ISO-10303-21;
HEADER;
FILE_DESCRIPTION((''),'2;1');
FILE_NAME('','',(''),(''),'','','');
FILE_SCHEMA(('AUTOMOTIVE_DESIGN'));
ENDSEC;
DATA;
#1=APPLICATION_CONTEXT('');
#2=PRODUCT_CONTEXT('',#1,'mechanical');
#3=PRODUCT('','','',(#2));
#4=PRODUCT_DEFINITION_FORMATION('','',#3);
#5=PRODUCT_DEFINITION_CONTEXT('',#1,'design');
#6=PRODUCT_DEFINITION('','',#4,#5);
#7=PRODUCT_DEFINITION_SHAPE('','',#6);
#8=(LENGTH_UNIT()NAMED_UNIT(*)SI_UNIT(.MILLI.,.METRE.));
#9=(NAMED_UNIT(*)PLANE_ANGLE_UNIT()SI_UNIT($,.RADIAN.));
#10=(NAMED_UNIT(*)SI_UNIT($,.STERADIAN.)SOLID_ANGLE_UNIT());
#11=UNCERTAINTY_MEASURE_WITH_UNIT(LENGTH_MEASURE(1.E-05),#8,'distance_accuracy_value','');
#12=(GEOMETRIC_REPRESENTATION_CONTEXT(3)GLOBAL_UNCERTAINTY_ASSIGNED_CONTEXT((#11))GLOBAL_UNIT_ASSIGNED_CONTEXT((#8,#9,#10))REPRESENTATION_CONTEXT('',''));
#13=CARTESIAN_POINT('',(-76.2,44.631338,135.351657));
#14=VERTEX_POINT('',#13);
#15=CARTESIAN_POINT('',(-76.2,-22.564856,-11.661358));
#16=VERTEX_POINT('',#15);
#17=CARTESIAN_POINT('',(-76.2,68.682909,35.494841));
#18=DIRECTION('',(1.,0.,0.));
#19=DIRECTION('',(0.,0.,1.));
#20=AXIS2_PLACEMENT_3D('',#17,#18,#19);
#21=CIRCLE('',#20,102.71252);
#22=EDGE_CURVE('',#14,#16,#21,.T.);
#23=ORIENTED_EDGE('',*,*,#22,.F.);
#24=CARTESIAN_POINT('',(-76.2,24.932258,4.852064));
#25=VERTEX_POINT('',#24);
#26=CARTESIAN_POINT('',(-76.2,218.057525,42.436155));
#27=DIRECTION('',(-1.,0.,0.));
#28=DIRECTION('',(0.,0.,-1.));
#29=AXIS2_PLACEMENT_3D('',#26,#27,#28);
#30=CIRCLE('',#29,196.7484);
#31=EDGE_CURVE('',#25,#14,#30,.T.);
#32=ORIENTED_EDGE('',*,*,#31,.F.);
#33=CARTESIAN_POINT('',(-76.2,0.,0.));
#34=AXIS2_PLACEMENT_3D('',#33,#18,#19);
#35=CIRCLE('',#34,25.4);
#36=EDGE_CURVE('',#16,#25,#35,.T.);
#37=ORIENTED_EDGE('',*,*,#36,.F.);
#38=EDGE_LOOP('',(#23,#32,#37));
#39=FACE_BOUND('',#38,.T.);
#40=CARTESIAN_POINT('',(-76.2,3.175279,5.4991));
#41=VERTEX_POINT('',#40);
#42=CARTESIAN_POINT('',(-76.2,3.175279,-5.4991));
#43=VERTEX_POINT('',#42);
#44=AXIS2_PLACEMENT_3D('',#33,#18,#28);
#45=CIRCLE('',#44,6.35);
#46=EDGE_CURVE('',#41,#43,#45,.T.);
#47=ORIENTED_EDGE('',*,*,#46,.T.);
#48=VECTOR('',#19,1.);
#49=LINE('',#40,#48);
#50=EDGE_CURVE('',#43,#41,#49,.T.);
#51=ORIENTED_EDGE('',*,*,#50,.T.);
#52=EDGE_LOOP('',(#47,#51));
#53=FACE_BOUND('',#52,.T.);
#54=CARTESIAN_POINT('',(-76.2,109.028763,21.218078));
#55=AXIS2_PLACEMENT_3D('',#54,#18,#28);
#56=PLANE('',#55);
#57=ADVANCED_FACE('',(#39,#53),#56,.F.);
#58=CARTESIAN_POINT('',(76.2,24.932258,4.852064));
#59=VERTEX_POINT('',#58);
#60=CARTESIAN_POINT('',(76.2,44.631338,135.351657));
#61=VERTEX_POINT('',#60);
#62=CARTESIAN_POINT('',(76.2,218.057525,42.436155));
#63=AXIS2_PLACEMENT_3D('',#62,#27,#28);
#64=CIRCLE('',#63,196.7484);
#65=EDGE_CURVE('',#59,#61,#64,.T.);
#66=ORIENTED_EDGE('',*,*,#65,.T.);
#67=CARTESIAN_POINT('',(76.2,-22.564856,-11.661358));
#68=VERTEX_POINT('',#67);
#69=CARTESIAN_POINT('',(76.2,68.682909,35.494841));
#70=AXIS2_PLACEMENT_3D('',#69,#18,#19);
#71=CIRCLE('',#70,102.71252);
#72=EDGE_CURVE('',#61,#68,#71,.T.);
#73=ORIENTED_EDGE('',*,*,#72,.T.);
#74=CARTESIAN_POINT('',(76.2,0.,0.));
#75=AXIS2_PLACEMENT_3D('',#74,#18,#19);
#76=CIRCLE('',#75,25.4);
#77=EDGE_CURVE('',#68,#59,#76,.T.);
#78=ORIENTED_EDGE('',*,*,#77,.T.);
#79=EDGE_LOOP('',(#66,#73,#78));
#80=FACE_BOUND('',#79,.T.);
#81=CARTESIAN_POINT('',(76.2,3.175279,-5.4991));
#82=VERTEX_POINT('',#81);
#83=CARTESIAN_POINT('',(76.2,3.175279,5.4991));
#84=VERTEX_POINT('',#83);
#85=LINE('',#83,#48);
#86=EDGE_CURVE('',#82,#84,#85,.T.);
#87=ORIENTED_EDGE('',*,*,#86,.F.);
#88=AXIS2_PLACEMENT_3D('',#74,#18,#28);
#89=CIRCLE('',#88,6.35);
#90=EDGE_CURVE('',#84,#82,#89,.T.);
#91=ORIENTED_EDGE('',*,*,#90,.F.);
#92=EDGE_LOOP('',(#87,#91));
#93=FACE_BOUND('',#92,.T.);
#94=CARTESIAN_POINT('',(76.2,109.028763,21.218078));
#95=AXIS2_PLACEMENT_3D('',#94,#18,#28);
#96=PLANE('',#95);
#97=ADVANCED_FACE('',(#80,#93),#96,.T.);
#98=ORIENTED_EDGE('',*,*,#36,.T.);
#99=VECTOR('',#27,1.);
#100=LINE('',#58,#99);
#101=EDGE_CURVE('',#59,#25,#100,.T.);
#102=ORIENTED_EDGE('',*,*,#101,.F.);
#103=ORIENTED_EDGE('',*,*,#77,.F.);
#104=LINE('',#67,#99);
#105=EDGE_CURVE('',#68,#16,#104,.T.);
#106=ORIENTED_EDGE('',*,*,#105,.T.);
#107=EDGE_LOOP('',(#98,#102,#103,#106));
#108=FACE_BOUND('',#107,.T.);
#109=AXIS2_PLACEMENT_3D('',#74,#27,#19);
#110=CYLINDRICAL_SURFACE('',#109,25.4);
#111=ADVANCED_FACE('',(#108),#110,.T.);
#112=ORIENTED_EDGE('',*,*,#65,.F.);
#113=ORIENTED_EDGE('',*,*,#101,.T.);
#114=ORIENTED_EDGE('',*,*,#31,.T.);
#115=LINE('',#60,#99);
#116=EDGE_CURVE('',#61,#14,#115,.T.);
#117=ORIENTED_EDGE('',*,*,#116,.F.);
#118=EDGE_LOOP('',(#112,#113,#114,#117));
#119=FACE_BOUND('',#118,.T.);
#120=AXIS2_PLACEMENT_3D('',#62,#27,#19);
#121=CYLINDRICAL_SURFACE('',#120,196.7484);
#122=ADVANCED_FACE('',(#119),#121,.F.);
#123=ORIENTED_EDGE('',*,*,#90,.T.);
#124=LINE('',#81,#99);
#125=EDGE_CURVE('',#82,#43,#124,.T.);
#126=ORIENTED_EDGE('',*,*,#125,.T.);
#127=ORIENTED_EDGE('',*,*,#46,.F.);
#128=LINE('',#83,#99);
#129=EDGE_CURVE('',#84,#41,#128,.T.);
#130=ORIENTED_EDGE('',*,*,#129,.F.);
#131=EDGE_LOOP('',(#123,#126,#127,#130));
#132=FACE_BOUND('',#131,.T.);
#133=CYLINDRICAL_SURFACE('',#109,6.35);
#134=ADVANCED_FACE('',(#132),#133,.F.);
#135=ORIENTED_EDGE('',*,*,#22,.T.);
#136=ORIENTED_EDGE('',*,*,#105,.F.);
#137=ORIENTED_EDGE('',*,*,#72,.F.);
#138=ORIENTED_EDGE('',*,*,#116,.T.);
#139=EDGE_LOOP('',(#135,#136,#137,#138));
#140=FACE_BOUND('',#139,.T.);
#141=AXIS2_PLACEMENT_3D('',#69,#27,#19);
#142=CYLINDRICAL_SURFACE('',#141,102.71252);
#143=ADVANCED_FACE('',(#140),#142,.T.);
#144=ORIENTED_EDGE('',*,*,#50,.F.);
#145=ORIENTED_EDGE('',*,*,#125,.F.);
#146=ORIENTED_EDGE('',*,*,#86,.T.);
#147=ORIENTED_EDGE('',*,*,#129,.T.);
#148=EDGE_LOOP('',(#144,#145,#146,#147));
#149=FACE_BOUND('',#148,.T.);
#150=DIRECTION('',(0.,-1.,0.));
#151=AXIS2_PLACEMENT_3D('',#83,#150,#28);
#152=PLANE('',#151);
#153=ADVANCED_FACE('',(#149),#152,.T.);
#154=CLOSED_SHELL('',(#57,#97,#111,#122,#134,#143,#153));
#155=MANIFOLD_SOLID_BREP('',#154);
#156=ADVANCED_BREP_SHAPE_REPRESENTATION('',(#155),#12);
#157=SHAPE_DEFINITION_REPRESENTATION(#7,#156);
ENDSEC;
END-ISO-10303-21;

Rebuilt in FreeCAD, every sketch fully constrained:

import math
import FreeCAD as App
import Part
import Sketcher

V = App.Vector
Q = App.Units.Quantity

doc = App.newDocument("Part")
body = doc.addObject("PartDesign::Body", "Body")

# Sketch on YZ plane
sketch1 = body.newObject("Sketcher::SketchObject", "Sketch")
sketch1.AttachmentSupport = (doc.getObject("YZ_Plane"), [""])
sketch1.MapMode = "FlatFace"
sketch1.addGeometry([
    Part.ArcOfCircle(Part.Circle(V(0, 0, 0), V(0, 0, 1), 25), math.radians(-153), math.radians(11)),  # 0
    Part.ArcOfCircle(Part.Circle(V(218, 42, 0), V(0, 0, 1), 197), math.radians(152), math.radians(191)),  # 1
    Part.ArcOfCircle(Part.Circle(V(69, 35, 0), V(0, 0, 1), 103), math.radians(104), math.radians(207)),  # 2
    Part.LineSegment(V(3, 5, 0), V(3, -5, 0)),  # 3
    Part.ArcOfCircle(Part.Circle(V(0, 0, 0), V(0, 0, 1), 6), math.radians(60), math.radians(300)),  # 4
], False)
sketch1.addConstraint([
    Sketcher.Constraint("Tangent", 0, 2, 1, 2),
    Sketcher.Constraint("Coincident", 1, 1, 2, 1),
    Sketcher.Constraint("Tangent", 2, 2, 0, 1),
    Sketcher.Constraint("Coincident", 3, 1, 4, 1),
    Sketcher.Constraint("Coincident", 4, 2, 3, 2),
    Sketcher.Constraint("Vertical", 3),
    Sketcher.Constraint("Coincident", 0, 3, -1, 1),
    Sketcher.Constraint("Coincident", 4, 3, -1, 1),
    Sketcher.Constraint("Radius", 0, Q("1 in")),
    Sketcher.Constraint("Radius", 4, Q("0.25 in")),
    Sketcher.Constraint("Radius", 1, Q("7.746 in")),
    Sketcher.Constraint("Radius", 2, Q("4.0438 in")),
    Sketcher.Constraint("DistanceY", 3, 2, 3, 1, Q("0.433 in")),
    Sketcher.Constraint("DistanceY", 2, 2, 2, 3, Q("47.156199 mm")),
    Sketcher.Constraint("DistanceX", -1, 1, 1, 1, Q("44.631338 mm")),
])
pad1 = body.newObject("PartDesign::Pad", "Pad")
pad1.Profile = sketch1
pad1.Length = Q("6 in")
pad1.Midplane = True

doc.recompute()
